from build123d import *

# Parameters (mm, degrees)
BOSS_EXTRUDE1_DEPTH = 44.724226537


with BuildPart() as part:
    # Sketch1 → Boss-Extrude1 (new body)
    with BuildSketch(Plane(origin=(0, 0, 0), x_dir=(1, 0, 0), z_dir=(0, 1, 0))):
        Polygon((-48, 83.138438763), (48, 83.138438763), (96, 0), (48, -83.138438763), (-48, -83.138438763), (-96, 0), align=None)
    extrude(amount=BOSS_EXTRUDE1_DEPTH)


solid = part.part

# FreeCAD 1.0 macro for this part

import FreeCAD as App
import Part
import Sketcher

V = App.Vector
Q = App.Units.Quantity

doc = App.newDocument("Part")
params = doc.addObject("Spreadsheet::Sheet", "Params")
for row, (alias, value) in enumerate([
    ("sketch1_width", "96 mm"),
    ("sketch1_length", "96 mm"),
    ("pad1_length", "44.724227 mm"),
], start=1):
    params.set(f"A{row}", alias)
    params.set(f"B{row}", "=" + value)
    params.setAlias(f"B{row}", alias)

body = doc.addObject("PartDesign::Body", "Body")

sketch1 = body.newObject("Sketcher::SketchObject", "Sketch")
sketch1.AttachmentSupport = (doc.getObject("XZ_Plane"), [""])
sketch1.MapMode = "FlatFace"
sketch1.addGeometry([
    Part.LineSegment(V(48, -83, 0), V(-48, -83, 0)),
    Part.LineSegment(V(-48, -83, 0), V(-96, 0, 0)),
    Part.LineSegment(V(-96, 0, 0), V(-48, 83, 0)),
    Part.LineSegment(V(-48, 83, 0), V(48, 83, 0)),
    Part.LineSegment(V(48, 83, 0), V(96, 0, 0)),
    Part.LineSegment(V(96, 0, 0), V(48, -83, 0)),
], False)
sketch1.addConstraint([
    Sketcher.Constraint("Coincident", 0, 2, 1, 1),
    Sketcher.Constraint("Coincident", 1, 2, 2, 1),
    Sketcher.Constraint("Coincident", 2, 2, 3, 1),
    Sketcher.Constraint("Coincident", 3, 2, 4, 1),
    Sketcher.Constraint("Coincident", 4, 2, 5, 1),
    Sketcher.Constraint("Coincident", 5, 2, 0, 1),
    Sketcher.Constraint("Horizontal", 0),
    Sketcher.Constraint("Horizontal", 3),
    Sketcher.Constraint("Symmetric", 0, 2, 3, 2, -1, 1),
    Sketcher.Constraint("Symmetric", 1, 2, 4, 2, -1, 1),
    Sketcher.Constraint("PointOnObject", 1, 2, -1),
    Sketcher.Constraint("Parallel", 2, 5),
    Sketcher.Constraint("Vertical", 0, 2, 2, 2),
    Sketcher.Constraint("DistanceX", 0, 2, 0, 1, Q("96 mm")),
    Sketcher.Constraint("Angle", 1, Q("120 deg")),
    Sketcher.Constraint("Distance", 1, Q("96 mm")),
])
sketch1.setExpression("Constraints[13]", "Params.sketch1_width")
sketch1.setExpression("Constraints[15]", "Params.sketch1_length")
pad1 = body.newObject("PartDesign::Pad", "Pad")
pad1.Profile = sketch1
pad1.setExpression("Length", "Params.pad1_length")
pad1.Reversed = True

doc.recompute()
